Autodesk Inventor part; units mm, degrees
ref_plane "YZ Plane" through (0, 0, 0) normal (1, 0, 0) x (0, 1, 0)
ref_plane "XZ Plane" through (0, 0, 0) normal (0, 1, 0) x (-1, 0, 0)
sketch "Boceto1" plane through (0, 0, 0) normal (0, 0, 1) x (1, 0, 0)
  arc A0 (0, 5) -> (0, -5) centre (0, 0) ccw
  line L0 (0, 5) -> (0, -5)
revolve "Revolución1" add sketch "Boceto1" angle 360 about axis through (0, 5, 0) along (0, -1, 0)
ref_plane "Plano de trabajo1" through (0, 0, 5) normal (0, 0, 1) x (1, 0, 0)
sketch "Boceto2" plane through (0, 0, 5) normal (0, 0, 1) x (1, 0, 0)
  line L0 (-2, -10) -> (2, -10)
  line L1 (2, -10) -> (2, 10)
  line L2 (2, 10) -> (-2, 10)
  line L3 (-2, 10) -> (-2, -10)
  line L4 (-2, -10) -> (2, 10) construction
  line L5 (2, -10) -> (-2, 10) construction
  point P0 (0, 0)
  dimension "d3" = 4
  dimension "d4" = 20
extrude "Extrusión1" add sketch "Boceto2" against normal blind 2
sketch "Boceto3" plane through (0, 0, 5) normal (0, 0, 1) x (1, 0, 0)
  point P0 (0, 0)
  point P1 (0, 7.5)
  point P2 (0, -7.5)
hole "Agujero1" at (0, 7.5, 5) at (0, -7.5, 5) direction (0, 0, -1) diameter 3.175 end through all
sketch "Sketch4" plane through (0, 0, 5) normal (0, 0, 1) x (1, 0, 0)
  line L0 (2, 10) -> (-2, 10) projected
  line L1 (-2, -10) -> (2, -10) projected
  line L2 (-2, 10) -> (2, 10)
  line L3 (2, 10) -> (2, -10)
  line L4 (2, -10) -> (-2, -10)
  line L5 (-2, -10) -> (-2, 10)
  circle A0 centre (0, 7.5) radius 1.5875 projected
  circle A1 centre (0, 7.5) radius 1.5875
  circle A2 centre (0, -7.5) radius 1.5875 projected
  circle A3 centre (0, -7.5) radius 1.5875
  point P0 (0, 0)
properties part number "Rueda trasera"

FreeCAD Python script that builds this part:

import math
import FreeCAD as App
import Part
import Sketcher

V = App.Vector
Q = App.Units.Quantity


def add_polygon(sketch, points):
    """Adds a closed chain of lines whose ends are joined by coincident constraints."""
    first, n = sketch.GeometryCount, len(points)
    for a, b in zip(points, points[1:] + points[:1]):
        sketch.addGeometry(Part.LineSegment(App.Vector(*a, 0), App.Vector(*b, 0)), False)
    for i in range(n):
        sketch.addConstraint(Sketcher.Constraint("Coincident", first + i, 2, first + (i + 1) % n, 1))

doc = App.newDocument("Part")
params = doc.addObject("Spreadsheet::Sheet", "Params")
for row, (alias, value) in enumerate([
    ("sketch1_radius", "5 mm"),
    ("revolution_angle", "360 deg"),
    ("sketch2_width", "4 mm"),
    ("sketch2_height", "20 mm"),
    ("pad1_length", "2 mm"),
    ("hole_diameter", "3.175 mm"),
], start=1):
    params.set(f"A{row}", alias)
    params.set(f"B{row}", "=" + value)
    params.setAlias(f"B{row}", alias)

body = doc.addObject("PartDesign::Body", "Body")

sketch1 = body.newObject("Sketcher::SketchObject", "Sketch")
sketch1.AttachmentSupport = (doc.getObject("XY_Plane"), [""])
sketch1.MapMode = "FlatFace"
sketch1.addGeometry(Part.LineSegment(V(0, -5, 0), V(0, 5, 0)), False)
sketch1.addGeometry(Part.ArcOfCircle(Part.Circle(V(0, 0, 0), V(0, 0, 1), 5), math.radians(90), math.radians(270)), False)
sketch1.addConstraint(Sketcher.Constraint("Coincident", 0, 1, 1, 2))
sketch1.addConstraint(Sketcher.Constraint("Coincident", 1, 1, 0, 2))
sketch1.addConstraint(Sketcher.Constraint("Vertical", 0))
sketch1.addConstraint(Sketcher.Constraint("Coincident", 1, 3, -1, 1))
sketch1.addConstraint(Sketcher.Constraint("PointOnObject", 0, 1, -2))
sketch1.addConstraint(Sketcher.Constraint("Radius", 1, Q("5 mm")))
sketch1.setExpression("Constraints[5]", "Params.sketch1_radius")
revolution = body.newObject("PartDesign::Revolution", "Revolution")
revolution.Profile = sketch1
revolution.ReferenceAxis = (sketch1, ["V_Axis"])
revolution.setExpression("Angle", "Params.revolution_angle")

sketch2 = body.newObject("Sketcher::SketchObject", "Sketch001")
sketch2.AttachmentSupport = (doc.getObject("XY_Plane"), [""])
sketch2.MapMode = "FlatFace"
sketch2.AttachmentOffset = App.Placement(V(0, 0, 5), App.Rotation())
add_polygon(sketch2, [(-2, 10), (-2, -10), (2, -10), (2, 10)])
sketch2.addConstraint(Sketcher.Constraint("Vertical", 0))
sketch2.addConstraint(Sketcher.Constraint("Horizontal", 1))
sketch2.addConstraint(Sketcher.Constraint("Vertical", 2))
sketch2.addConstraint(Sketcher.Constraint("Horizontal", 3))
sketch2.addConstraint(Sketcher.Constraint("Symmetric", 0, 2, 2, 2, -1, 1))
sketch2.addConstraint(Sketcher.Constraint("DistanceX", 1, 1, 1, 2, Q("4 mm")))
sketch2.addConstraint(Sketcher.Constraint("DistanceY", 0, 2, 0, 1, Q("20 mm")))
sketch2.setExpression("Constraints[9]", "Params.sketch2_width")
sketch2.setExpression("Constraints[10]", "Params.sketch2_height")
pad1 = body.newObject("PartDesign::Pad", "Pad")
pad1.Profile = sketch2
pad1.setExpression("Length", "Params.pad1_length")
pad1.Reversed = True

sketch3 = body.newObject("Sketcher::SketchObject", "Sketch002")
sketch3.AttachmentSupport = (doc.getObject("XY_Plane"), [""])
sketch3.MapMode = "FlatFace"
sketch3.AttachmentOffset = App.Placement(V(0, 0, 5), App.Rotation())
sketch3.addGeometry(Part.Circle(V(0, 7.5, 0), V(0, 0, 1), 1.5875), False)
sketch3.addGeometry(Part.Circle(V(0, -7.5, 0), V(0, 0, 1), 1.5875), False)
sketch3.addConstraint(Sketcher.Constraint("Equal", 0, 1))
sketch3.addConstraint(Sketcher.Constraint("Symmetric", 0, 3, 1, 3, -1, 1))
sketch3.addConstraint(Sketcher.Constraint("PointOnObject", 0, 3, -2))
sketch3.addConstraint(Sketcher.Constraint("Diameter", 0, Q("3.175 mm")))
sketch3.addConstraint(Sketcher.Constraint("DistanceY", 1, 3, 0, 3, Q("15 mm")))
doc.recompute()
hole = body.newObject("PartDesign::Hole", "Hole")
hole.Profile = sketch3
hole.ThreadType = "None"
hole.setExpression("Diameter", "Params.hole_diameter")
hole.DepthType = "ThroughAll"

doc.recompute()
